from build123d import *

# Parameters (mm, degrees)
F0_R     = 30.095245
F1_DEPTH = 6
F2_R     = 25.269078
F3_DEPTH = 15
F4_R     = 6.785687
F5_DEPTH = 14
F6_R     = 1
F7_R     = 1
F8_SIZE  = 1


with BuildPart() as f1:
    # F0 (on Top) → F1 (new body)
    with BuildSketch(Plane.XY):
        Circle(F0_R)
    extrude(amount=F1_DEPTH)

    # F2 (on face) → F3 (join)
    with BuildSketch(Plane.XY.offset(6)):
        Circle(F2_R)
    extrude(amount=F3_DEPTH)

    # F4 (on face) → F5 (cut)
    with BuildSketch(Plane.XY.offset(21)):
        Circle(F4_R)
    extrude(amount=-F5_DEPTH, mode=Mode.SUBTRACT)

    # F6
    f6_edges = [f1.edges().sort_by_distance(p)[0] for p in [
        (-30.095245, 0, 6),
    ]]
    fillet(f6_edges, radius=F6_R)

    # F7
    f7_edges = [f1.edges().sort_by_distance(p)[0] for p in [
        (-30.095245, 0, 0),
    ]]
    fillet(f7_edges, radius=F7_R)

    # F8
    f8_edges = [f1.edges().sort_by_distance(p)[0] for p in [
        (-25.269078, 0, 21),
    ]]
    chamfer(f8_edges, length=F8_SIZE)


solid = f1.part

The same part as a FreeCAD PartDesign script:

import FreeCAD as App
import Part
import Sketcher
from FreeCAD import Vector
Q = App.Units.Quantity


def edges_at(feature, points):
    """Names of the edges that pass closest to the given points."""
    edges = feature.Shape.Edges
    near = lambda p: min(range(len(edges)), key=lambda i: edges[i].distToShape(Part.Vertex(*p))[0])
    return sorted({f"Edge{near(p) + 1}" for p in points})

doc = App.newDocument("Part")
params = doc.addObject("Spreadsheet::Sheet", "Params")
for row, (alias, value) in enumerate([
    ("pad1_length", "6 mm"),
    ("pad2_length", "15 mm"),
    ("pocket1_length", "14 mm"),
    ("fillet_radius", "1 mm"),
    ("fillet2_radius", "1 mm"),
    ("chamfer_size", "1 mm"),
], start=1):
    params.set(f"A{row}", alias)
    params.set(f"B{row}", "=" + value)
    params.setAlias(f"B{row}", alias)

body = doc.addObject("PartDesign::Body", "Body")

sketch1 = body.newObject("Sketcher::SketchObject", "Sketch")
sketch1.AttachmentSupport = (doc.getObject("XY_Plane"), [""])
sketch1.MapMode = "FlatFace"
sketch1.addGeometry(Part.Circle(Vector(0, 0, 0), Vector(0, 0, 1), 30.095245), False)
sketch1.addConstraint(Sketcher.Constraint("Coincident", 0, 3, -1, 1))
sketch1.addConstraint(Sketcher.Constraint("Diameter", 0, Q("60.19049 mm")))
pad1 = body.newObject("PartDesign::Pad", "Pad")
pad1.Profile = sketch1
pad1.setExpression("Length", "Params.pad1_length")

sketch2 = body.newObject("Sketcher::SketchObject", "Sketch001")
sketch2.AttachmentSupport = (doc.getObject("XY_Plane"), [""])
sketch2.MapMode = "FlatFace"
sketch2.AttachmentOffset = App.Placement(Vector(0, 0, 6), App.Rotation())
sketch2.addGeometry(Part.Circle(Vector(0, 0, 0), Vector(0, 0, 1), 25.269078), False)
sketch2.addConstraint(Sketcher.Constraint("Coincident", 0, 3, -1, 1))
sketch2.addConstraint(Sketcher.Constraint("Diameter", 0, Q("50.538156 mm")))
pad2 = body.newObject("PartDesign::Pad", "Pad001")
pad2.Profile = sketch2
pad2.setExpression("Length", "Params.pad2_length")

sketch3 = body.newObject("Sketcher::SketchObject", "Sketch002")
sketch3.AttachmentSupport = (doc.getObject("XY_Plane"), [""])
sketch3.MapMode = "FlatFace"
sketch3.AttachmentOffset = App.Placement(Vector(0, 0, 21), App.Rotation())
sketch3.addGeometry(Part.Circle(Vector(0, 0, 0), Vector(0, 0, 1), 6.785687), False)
sketch3.addConstraint(Sketcher.Constraint("Coincident", 0, 3, -1, 1))
sketch3.addConstraint(Sketcher.Constraint("Diameter", 0, Q("13.571374 mm")))
pocket1 = body.newObject("PartDesign::Pocket", "Pocket")
pocket1.Profile = sketch3
pocket1.setExpression("Length", "Params.pocket1_length")
doc.recompute()

fillet = body.newObject("PartDesign::Fillet", "Fillet")
fillet.Base = (pocket1, edges_at(pocket1, [(-30.095, 0, 6)]))
fillet.setExpression("Radius", "Params.fillet_radius")
doc.recompute()

fillet2 = body.newObject("PartDesign::Fillet", "Fillet001")
fillet2.Base = (fillet, edges_at(fillet, [(-30.095, 0, 0)]))
fillet2.setExpression("Radius", "Params.fillet2_radius")
doc.recompute()

chamfer = body.newObject("PartDesign::Chamfer", "Chamfer")
chamfer.Base = (fillet2, edges_at(fillet2, [(-25.269, 0, 21)]))
chamfer.setExpression("Size", "Params.chamfer_size")

doc.recompute()
